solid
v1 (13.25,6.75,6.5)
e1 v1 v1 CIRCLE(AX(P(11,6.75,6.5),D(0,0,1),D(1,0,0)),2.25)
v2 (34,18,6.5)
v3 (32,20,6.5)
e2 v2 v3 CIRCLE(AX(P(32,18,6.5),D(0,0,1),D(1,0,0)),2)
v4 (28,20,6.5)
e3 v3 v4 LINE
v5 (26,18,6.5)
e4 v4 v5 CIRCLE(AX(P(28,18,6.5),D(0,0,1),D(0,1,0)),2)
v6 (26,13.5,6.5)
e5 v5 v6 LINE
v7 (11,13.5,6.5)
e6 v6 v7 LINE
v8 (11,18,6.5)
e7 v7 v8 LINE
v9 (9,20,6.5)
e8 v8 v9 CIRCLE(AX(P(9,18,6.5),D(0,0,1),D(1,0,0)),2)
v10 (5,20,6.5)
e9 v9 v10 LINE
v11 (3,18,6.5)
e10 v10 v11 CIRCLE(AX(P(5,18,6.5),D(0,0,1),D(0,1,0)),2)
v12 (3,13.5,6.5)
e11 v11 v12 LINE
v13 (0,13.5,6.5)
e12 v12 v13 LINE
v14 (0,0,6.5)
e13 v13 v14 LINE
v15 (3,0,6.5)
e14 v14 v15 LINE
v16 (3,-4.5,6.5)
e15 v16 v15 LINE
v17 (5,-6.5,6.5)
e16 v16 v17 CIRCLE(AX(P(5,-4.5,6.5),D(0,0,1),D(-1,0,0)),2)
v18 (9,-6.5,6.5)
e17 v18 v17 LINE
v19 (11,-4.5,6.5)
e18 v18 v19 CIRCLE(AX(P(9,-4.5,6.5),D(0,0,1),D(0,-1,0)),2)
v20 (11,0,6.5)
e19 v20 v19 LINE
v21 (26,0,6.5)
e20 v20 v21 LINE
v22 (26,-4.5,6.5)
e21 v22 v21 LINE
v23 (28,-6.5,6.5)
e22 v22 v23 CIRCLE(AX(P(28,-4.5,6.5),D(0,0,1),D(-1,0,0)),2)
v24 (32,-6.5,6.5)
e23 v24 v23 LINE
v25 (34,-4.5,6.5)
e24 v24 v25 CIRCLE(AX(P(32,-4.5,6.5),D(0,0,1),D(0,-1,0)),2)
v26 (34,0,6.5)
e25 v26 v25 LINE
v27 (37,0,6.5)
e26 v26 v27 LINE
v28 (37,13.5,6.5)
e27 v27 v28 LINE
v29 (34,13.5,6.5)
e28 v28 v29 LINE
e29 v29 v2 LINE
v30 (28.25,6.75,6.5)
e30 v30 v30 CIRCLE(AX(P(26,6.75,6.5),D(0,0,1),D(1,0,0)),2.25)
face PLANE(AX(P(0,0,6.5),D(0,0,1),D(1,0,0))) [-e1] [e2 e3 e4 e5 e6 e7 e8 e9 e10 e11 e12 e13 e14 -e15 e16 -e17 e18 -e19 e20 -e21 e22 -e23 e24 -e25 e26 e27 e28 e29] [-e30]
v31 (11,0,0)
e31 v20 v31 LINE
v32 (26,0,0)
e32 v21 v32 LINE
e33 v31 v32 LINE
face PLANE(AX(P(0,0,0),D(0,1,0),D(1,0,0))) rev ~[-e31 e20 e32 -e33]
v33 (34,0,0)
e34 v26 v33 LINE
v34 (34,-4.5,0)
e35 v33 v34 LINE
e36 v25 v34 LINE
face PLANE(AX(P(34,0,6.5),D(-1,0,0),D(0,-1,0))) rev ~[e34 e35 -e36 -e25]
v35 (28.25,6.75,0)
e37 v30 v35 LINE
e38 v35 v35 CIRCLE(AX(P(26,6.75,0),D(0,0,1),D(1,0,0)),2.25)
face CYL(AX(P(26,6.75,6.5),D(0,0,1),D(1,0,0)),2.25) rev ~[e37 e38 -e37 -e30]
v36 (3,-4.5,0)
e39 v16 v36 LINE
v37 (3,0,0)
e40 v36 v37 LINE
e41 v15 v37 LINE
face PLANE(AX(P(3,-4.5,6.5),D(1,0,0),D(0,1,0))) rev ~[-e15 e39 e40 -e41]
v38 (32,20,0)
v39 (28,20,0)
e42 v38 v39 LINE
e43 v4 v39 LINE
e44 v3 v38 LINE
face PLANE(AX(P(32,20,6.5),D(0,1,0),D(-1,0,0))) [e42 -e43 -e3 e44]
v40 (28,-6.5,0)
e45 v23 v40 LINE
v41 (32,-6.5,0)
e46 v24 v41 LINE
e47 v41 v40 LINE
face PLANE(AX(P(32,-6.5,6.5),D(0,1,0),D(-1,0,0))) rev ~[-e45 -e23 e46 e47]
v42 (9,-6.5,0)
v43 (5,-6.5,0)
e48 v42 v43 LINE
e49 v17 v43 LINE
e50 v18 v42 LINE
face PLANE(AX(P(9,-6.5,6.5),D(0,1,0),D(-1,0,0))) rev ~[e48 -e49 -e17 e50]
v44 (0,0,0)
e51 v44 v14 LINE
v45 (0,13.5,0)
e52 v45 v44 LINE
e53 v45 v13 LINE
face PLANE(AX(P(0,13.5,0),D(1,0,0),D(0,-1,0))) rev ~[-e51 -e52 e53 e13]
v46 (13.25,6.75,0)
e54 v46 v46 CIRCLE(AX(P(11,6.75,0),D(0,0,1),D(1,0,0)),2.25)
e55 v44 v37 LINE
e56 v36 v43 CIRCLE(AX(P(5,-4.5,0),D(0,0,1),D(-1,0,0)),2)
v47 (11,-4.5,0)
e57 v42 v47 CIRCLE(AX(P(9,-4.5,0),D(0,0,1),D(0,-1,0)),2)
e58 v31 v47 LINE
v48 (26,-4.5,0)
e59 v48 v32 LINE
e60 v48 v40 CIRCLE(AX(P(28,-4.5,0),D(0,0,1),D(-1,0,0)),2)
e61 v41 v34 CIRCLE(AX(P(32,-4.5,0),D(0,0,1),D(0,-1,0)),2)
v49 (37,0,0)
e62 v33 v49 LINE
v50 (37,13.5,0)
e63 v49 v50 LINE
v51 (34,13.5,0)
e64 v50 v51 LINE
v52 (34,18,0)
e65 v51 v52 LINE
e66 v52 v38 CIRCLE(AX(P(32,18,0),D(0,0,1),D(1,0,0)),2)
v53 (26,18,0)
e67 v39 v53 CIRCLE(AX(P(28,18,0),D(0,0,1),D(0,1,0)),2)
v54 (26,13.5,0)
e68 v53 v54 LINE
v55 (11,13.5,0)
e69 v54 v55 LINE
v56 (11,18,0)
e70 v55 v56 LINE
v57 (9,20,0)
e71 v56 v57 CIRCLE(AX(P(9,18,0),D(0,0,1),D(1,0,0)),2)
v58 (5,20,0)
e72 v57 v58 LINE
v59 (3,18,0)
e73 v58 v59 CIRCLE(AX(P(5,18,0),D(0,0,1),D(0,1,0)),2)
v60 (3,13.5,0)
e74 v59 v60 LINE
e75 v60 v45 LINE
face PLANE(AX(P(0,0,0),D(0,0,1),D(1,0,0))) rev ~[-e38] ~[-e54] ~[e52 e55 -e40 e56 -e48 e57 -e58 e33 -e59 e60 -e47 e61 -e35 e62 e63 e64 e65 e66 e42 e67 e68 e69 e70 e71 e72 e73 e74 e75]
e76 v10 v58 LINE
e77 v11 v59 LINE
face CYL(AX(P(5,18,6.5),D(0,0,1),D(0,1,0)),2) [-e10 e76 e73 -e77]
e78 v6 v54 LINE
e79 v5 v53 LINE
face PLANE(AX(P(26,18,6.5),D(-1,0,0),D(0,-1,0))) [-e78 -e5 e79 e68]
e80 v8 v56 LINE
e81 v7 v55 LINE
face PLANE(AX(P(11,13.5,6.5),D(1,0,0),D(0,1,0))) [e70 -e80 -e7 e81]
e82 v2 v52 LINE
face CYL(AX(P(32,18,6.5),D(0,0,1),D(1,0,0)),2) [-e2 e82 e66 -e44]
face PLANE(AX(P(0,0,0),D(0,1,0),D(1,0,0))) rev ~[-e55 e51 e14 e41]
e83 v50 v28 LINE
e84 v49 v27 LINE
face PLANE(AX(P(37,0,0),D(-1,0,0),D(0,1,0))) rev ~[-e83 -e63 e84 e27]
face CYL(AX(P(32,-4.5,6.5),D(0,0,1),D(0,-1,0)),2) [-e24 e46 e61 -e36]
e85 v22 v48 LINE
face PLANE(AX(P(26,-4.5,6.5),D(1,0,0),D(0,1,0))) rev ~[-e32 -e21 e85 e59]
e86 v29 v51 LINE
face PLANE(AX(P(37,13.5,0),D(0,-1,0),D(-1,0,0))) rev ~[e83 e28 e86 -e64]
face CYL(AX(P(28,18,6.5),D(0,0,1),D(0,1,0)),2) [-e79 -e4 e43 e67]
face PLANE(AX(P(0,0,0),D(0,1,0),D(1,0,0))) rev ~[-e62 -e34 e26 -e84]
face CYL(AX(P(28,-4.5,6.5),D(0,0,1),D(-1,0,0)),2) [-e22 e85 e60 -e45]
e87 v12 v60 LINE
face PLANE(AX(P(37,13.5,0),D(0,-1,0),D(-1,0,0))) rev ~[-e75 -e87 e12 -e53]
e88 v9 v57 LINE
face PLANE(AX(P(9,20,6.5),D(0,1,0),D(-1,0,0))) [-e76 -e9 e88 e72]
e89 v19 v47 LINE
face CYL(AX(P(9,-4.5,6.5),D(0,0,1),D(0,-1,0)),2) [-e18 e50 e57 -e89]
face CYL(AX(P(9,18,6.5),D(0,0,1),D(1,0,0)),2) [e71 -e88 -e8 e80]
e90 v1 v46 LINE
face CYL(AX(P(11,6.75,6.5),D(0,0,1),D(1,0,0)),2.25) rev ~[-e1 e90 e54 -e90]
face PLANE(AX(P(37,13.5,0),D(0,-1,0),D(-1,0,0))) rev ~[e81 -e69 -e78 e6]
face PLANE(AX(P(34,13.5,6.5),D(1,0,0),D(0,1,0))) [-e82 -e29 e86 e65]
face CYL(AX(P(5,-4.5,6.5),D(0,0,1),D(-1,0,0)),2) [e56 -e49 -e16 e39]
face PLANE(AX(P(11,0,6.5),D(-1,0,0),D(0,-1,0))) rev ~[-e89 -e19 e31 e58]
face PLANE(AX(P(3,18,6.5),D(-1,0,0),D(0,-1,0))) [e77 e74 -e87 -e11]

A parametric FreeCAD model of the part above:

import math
import FreeCAD as App
import Part
import Sketcher


def add_polygon(sketch, points):
    """Adds a closed chain of lines whose ends are joined by coincident constraints."""
    first, n = sketch.GeometryCount, len(points)
    for a, b in zip(points, points[1:] + points[:1]):
        sketch.addGeometry(Part.LineSegment(App.Vector(*a, 0), App.Vector(*b, 0)), False)
    for i in range(n):
        sketch.addConstraint(Sketcher.Constraint("Coincident", first + i, 2, first + (i + 1) % n, 1))

doc = App.newDocument("Part")
body = doc.addObject("PartDesign::Body", "Body")

sketch1 = body.newObject("Sketcher::SketchObject", "Sketch")
sketch1.AttachmentSupport = (doc.getObject("XY_Plane"), [""])
sketch1.MapMode = "FlatFace"
add_polygon(sketch1, [(0, 14), (0, 0), (37, 0), (37, 14)])
sketch1.addConstraint([
    Sketcher.Constraint("Vertical", 0),
    Sketcher.Constraint("Horizontal", 1),
    Sketcher.Constraint("Vertical", 2),
    Sketcher.Constraint("Horizontal", 3),
    Sketcher.Constraint("Coincident", 0, 2, -1, 1),
    Sketcher.Constraint("DistanceX", 1, 1, 1, 2, 37.0),
    Sketcher.Constraint("DistanceY", 0, 2, 0, 1, 13.5),
])
pad1 = body.newObject("PartDesign::Pad", "Pad")
pad1.Profile = sketch1
pad1.Length = 6.5

sketch2 = body.newObject("Sketcher::SketchObject", "Sketch001")
sketch2.AttachmentSupport = (doc.getObject("XY_Plane"), [""])
sketch2.MapMode = "FlatFace"
sketch2.AttachmentOffset = App.Placement(App.Vector(0, 0, 6.5), App.Rotation())
sketch2.addGeometry([
    Part.LineSegment(App.Vector(34, 0, 0), App.Vector(26, 0, 0)),
    Part.LineSegment(App.Vector(26, 0, 0), App.Vector(26, -4.5, 0)),
    Part.ArcOfCircle(Part.Circle(App.Vector(28, -4.5, 0), App.Vector(0, 0, 1), 2), math.radians(180), math.radians(270)),
    Part.LineSegment(App.Vector(28, -6.5, 0), App.Vector(32, -6.5, 0)),
    Part.ArcOfCircle(Part.Circle(App.Vector(32, -4.5, 0), App.Vector(0, 0, 1), 2), math.radians(-90), math.radians(0)),
    Part.LineSegment(App.Vector(34, -4.5, 0), App.Vector(34, 0, 0)),
    Part.LineSegment(App.Vector(11, 0, 0), App.Vector(3, 0, 0)),
    Part.LineSegment(App.Vector(3, 0, 0), App.Vector(3, -4.5, 0)),
    Part.ArcOfCircle(Part.Circle(App.Vector(5, -4.5, 0), App.Vector(0, 0, 1), 2), math.radians(180), math.radians(270)),
    Part.LineSegment(App.Vector(5, -6.5, 0), App.Vector(9, -6.5, 0)),
    Part.ArcOfCircle(Part.Circle(App.Vector(9, -4.5, 0), App.Vector(0, 0, 1), 2), math.radians(-90), math.radians(0)),
    Part.LineSegment(App.Vector(11, -4.5, 0), App.Vector(11, 0, 0)),
    Part.LineSegment(App.Vector(3, 13.5, 0), App.Vector(11, 13.5, 0)),
    Part.LineSegment(App.Vector(11, 13.5, 0), App.Vector(11, 18, 0)),
    Part.ArcOfCircle(Part.Circle(App.Vector(9, 18, 0), App.Vector(0, 0, 1), 2), math.radians(0), math.radians(90)),
    Part.LineSegment(App.Vector(9, 20, 0), App.Vector(5, 20, 0)),
    Part.ArcOfCircle(Part.Circle(App.Vector(5, 18, 0), App.Vector(0, 0, 1), 2), math.radians(90), math.radians(180)),
    Part.LineSegment(App.Vector(3, 18, 0), App.Vector(3, 13.5, 0)),
    Part.LineSegment(App.Vector(26, 13.5, 0), App.Vector(34, 13.5, 0)),
    Part.LineSegment(App.Vector(34, 13.5, 0), App.Vector(34, 18, 0)),
    Part.ArcOfCircle(Part.Circle(App.Vector(32, 18, 0), App.Vector(0, 0, 1), 2), math.radians(0), math.radians(90)),
    Part.LineSegment(App.Vector(32, 20, 0), App.Vector(28, 20, 0)),
    Part.ArcOfCircle(Part.Circle(App.Vector(28, 18, 0), App.Vector(0, 0, 1), 2), math.radians(90), math.radians(180)),
    Part.LineSegment(App.Vector(26, 18, 0), App.Vector(26, 13.5, 0)),
], False)
sketch2.addConstraint([
    Sketcher.Constraint("Coincident", 0, 2, 1, 1),
    Sketcher.Constraint("Tangent", 1, 2, 2, 1),
    Sketcher.Constraint("Tangent", 2, 2, 3, 1),
    Sketcher.Constraint("Tangent", 3, 2, 4, 1),
    Sketcher.Constraint("Tangent", 4, 2, 5, 1),
    Sketcher.Constraint("Coincident", 5, 2, 0, 1),
    Sketcher.Constraint("Coincident", 6, 2, 7, 1),
    Sketcher.Constraint("Tangent", 7, 2, 8, 1),
    Sketcher.Constraint("Tangent", 8, 2, 9, 1),
    Sketcher.Constraint("Tangent", 9, 2, 10, 1),
    Sketcher.Constraint("Tangent", 10, 2, 11, 1),
    Sketcher.Constraint("Coincident", 11, 2, 6, 1),
    Sketcher.Constraint("Coincident", 12, 2, 13, 1),
    Sketcher.Constraint("Tangent", 13, 2, 14, 1),
    Sketcher.Constraint("Tangent", 14, 2, 15, 1),
    Sketcher.Constraint("Tangent", 15, 2, 16, 1),
    Sketcher.Constraint("Tangent", 16, 2, 17, 1),
    Sketcher.Constraint("Coincident", 17, 2, 12, 1),
    Sketcher.Constraint("Coincident", 18, 2, 19, 1),
    Sketcher.Constraint("Tangent", 19, 2, 20, 1),
    Sketcher.Constraint("Tangent", 20, 2, 21, 1),
    Sketcher.Constraint("Tangent", 21, 2, 22, 1),
    Sketcher.Constraint("Tangent", 22, 2, 23, 1),
    Sketcher.Constraint("Coincident", 23, 2, 18, 1),
    Sketcher.Constraint("Horizontal", 0),
    Sketcher.Constraint("Vertical", 1),
    Sketcher.Constraint("Horizontal", 3),
    Sketcher.Constraint("Vertical", 5),
    Sketcher.Constraint("Horizontal", 6),
    Sketcher.Constraint("Vertical", 7),
    Sketcher.Constraint("Horizontal", 9),
    Sketcher.Constraint("Vertical", 11),
    Sketcher.Constraint("Horizontal", 12),
    Sketcher.Constraint("Vertical", 13),
    Sketcher.Constraint("Horizontal", 15),
    Sketcher.Constraint("Vertical", 17),
    Sketcher.Constraint("Horizontal", 18),
    Sketcher.Constraint("Vertical", 19),
    Sketcher.Constraint("Horizontal", 21),
    Sketcher.Constraint("Vertical", 23),
    Sketcher.Constraint("Equal", 2, 4),
    Sketcher.Constraint("Equal", 4, 8),
    Sketcher.Constraint("Equal", 8, 10),
    Sketcher.Constraint("Equal", 10, 14),
    Sketcher.Constraint("Equal", 14, 16),
    Sketcher.Constraint("Equal", 16, 20),
    Sketcher.Constraint("Equal", 20, 22),
    Sketcher.Constraint("PointOnObject", 0, 2, -1),
    Sketcher.Constraint("PointOnObject", 6, 2, -1),
    Sketcher.Constraint("Horizontal", 4, 3, 8, 3),
    Sketcher.Constraint("Horizontal", 16, 3, 20, 3),
    Sketcher.Constraint("Horizontal", 17, 2, 18, 2),
    Sketcher.Constraint("Vertical", 10, 3, 14, 3),
    Sketcher.Constraint("Vertical", 8, 3, 16, 3),
    Sketcher.Constraint("Vertical", 4, 3, 20, 3),
    Sketcher.Constraint("Vertical", 2, 3, 22, 3),
    Sketcher.Constraint("Equal", 0, 6),
    Sketcher.Constraint("Equal", 11, 13),
    Sketcher.Constraint("Radius", 2, 2.0),
    Sketcher.Constraint("DistanceX", 0, 2, 0, 1, 8.0),
    Sketcher.Constraint("DistanceY", 2, 2, -1, 1, 6.5),
    Sketcher.Constraint("DistanceX", -1, 1, 2, 3, 28.0),
    Sketcher.Constraint("DistanceX", -1, 1, 8, 3, 5.0),
    Sketcher.Constraint("DistanceY", -1, 1, 14, 3, 18.0),
])
pad2 = body.newObject("PartDesign::Pad", "Pad001")
pad2.Profile = sketch2
pad2.Length = 6.5
pad2.Reversed = True

sketch3 = body.newObject("Sketcher::SketchObject", "Sketch002")
sketch3.AttachmentSupport = (doc.getObject("XY_Plane"), [""])
sketch3.MapMode = "FlatFace"
sketch3.AttachmentOffset = App.Placement(App.Vector(0, 0, 6.5), App.Rotation())
sketch3.addGeometry([
    Part.Circle(App.Vector(11, 6.8, 0), App.Vector(0, 0, 1), 2.2),
    Part.Circle(App.Vector(26, 6.8, 0), App.Vector(0, 0, 1), 2.2),
], False)
sketch3.addConstraint([
    Sketcher.Constraint("Equal", 0, 1),
    Sketcher.Constraint("Horizontal", 0, 3, 1, 3),
    Sketcher.Constraint("Diameter", 0, 4.5),
    Sketcher.Constraint("DistanceX", 0, 3, 1, 3, 15.0),
    Sketcher.Constraint("DistanceX", -1, 1, 0, 3, 11.0),
    Sketcher.Constraint("DistanceY", -1, 1, 0, 3, 6.75),
])
pocket1 = body.newObject("PartDesign::Pocket", "Pocket")
pocket1.Profile = sketch3
pocket1.Type = "ThroughAll"

doc.recompute()
